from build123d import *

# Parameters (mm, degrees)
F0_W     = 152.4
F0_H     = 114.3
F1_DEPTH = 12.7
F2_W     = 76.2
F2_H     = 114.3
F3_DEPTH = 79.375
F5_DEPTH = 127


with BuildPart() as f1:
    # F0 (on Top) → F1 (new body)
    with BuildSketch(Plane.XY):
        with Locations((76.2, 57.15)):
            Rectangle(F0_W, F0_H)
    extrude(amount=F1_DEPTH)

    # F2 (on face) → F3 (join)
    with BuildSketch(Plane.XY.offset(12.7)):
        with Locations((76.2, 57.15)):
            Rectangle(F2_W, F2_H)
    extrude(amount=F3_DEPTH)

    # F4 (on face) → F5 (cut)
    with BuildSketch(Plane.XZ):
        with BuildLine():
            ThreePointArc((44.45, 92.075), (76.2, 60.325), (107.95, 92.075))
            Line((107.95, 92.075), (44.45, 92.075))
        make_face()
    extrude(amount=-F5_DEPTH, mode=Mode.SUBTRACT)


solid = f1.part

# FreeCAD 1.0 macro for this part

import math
import FreeCAD as App
import Part
import Sketcher
from FreeCAD import Vector
Q = App.Units.Quantity


def add_polygon(sketch, points):
    """Adds a closed chain of lines whose ends are joined by coincident constraints."""
    first, n = sketch.GeometryCount, len(points)
    for a, b in zip(points, points[1:] + points[:1]):
        sketch.addGeometry(Part.LineSegment(App.Vector(*a, 0), App.Vector(*b, 0)), False)
    for i in range(n):
        sketch.addConstraint(Sketcher.Constraint("Coincident", first + i, 2, first + (i + 1) % n, 1))

doc = App.newDocument("Part")
body = doc.addObject("PartDesign::Body", "Body")

sketch1 = body.newObject("Sketcher::SketchObject", "Sketch")
sketch1.AttachmentSupport = (doc.getObject("XY_Plane"), [""])
sketch1.MapMode = "FlatFace"
add_polygon(sketch1, [(0, 114.3), (0, 0), (152.4, 0), (152.4, 114.3)])
sketch1.addConstraint([
    Sketcher.Constraint("Vertical", 0),
    Sketcher.Constraint("Horizontal", 1),
    Sketcher.Constraint("Vertical", 2),
    Sketcher.Constraint("Horizontal", 3),
    Sketcher.Constraint("Coincident", 0, 2, -1, 1),
    Sketcher.Constraint("DistanceX", 1, 1, 1, 2, Q("6 in")),
    Sketcher.Constraint("DistanceY", 0, 2, 0, 1, Q("4.5 in")),
])
pad1 = body.newObject("PartDesign::Pad", "Pad")
pad1.Profile = sketch1
pad1.Length = Q("0.5 in")

sketch2 = body.newObject("Sketcher::SketchObject", "Sketch001")
sketch2.AttachmentSupport = (doc.getObject("XY_Plane"), [""])
sketch2.MapMode = "FlatFace"
sketch2.AttachmentOffset = App.Placement(Vector(0, 0, 0.5 * 25.4), App.Rotation())
add_polygon(sketch2, [(38.1, 114.3), (38.1, 0), (114.3, 0), (114.3, 114.3)])
sketch2.addConstraint([
    Sketcher.Constraint("Vertical", 0),
    Sketcher.Constraint("Horizontal", 1),
    Sketcher.Constraint("Vertical", 2),
    Sketcher.Constraint("Horizontal", 3),
    Sketcher.Constraint("PointOnObject", 0, 2, -1),
    Sketcher.Constraint("DistanceX", 1, 1, 1, 2, Q("3 in")),
    Sketcher.Constraint("DistanceY", 0, 2, 0, 1, Q("4.5 in")),
    Sketcher.Constraint("DistanceX", -1, 1, 0, 2, Q("1.5 in")),
])
pad2 = body.newObject("PartDesign::Pad", "Pad001")
pad2.Profile = sketch2
pad2.Length = Q("3.125 in")

sketch3 = body.newObject("Sketcher::SketchObject", "Sketch002")
sketch3.AttachmentSupport = (doc.getObject("XZ_Plane"), [""])
sketch3.MapMode = "FlatFace"
sketch3.addGeometry([
    Part.ArcOfCircle(Part.Circle(Vector(76.2, 92.075, 0), Vector(0, 0, 1), 31.75), math.radians(180), math.radians(360)),
    Part.LineSegment(Vector(107.95, 92.075, 0), Vector(44.45, 92.075, 0)),
], False)
sketch3.addConstraint([
    Sketcher.Constraint("Coincident", 0, 1, 1, 2),
    Sketcher.Constraint("Coincident", 1, 1, 0, 2),
    Sketcher.Constraint("Horizontal", 1),
    Sketcher.Constraint("Radius", 0, Q("1.25 in")),
    Sketcher.Constraint("DistanceX", -1, 1, 0, 3, Q("3 in")),
    Sketcher.Constraint("DistanceY", -1, 1, 0, 3, Q("3.625 in")),
    Sketcher.Constraint("DistanceY", -1, 1, 0, 1, Q("3.625 in")),
])
pocket1 = body.newObject("PartDesign::Pocket", "Pocket")
pocket1.Profile = sketch3
pocket1.Length = Q("5 in")

doc.recompute()
